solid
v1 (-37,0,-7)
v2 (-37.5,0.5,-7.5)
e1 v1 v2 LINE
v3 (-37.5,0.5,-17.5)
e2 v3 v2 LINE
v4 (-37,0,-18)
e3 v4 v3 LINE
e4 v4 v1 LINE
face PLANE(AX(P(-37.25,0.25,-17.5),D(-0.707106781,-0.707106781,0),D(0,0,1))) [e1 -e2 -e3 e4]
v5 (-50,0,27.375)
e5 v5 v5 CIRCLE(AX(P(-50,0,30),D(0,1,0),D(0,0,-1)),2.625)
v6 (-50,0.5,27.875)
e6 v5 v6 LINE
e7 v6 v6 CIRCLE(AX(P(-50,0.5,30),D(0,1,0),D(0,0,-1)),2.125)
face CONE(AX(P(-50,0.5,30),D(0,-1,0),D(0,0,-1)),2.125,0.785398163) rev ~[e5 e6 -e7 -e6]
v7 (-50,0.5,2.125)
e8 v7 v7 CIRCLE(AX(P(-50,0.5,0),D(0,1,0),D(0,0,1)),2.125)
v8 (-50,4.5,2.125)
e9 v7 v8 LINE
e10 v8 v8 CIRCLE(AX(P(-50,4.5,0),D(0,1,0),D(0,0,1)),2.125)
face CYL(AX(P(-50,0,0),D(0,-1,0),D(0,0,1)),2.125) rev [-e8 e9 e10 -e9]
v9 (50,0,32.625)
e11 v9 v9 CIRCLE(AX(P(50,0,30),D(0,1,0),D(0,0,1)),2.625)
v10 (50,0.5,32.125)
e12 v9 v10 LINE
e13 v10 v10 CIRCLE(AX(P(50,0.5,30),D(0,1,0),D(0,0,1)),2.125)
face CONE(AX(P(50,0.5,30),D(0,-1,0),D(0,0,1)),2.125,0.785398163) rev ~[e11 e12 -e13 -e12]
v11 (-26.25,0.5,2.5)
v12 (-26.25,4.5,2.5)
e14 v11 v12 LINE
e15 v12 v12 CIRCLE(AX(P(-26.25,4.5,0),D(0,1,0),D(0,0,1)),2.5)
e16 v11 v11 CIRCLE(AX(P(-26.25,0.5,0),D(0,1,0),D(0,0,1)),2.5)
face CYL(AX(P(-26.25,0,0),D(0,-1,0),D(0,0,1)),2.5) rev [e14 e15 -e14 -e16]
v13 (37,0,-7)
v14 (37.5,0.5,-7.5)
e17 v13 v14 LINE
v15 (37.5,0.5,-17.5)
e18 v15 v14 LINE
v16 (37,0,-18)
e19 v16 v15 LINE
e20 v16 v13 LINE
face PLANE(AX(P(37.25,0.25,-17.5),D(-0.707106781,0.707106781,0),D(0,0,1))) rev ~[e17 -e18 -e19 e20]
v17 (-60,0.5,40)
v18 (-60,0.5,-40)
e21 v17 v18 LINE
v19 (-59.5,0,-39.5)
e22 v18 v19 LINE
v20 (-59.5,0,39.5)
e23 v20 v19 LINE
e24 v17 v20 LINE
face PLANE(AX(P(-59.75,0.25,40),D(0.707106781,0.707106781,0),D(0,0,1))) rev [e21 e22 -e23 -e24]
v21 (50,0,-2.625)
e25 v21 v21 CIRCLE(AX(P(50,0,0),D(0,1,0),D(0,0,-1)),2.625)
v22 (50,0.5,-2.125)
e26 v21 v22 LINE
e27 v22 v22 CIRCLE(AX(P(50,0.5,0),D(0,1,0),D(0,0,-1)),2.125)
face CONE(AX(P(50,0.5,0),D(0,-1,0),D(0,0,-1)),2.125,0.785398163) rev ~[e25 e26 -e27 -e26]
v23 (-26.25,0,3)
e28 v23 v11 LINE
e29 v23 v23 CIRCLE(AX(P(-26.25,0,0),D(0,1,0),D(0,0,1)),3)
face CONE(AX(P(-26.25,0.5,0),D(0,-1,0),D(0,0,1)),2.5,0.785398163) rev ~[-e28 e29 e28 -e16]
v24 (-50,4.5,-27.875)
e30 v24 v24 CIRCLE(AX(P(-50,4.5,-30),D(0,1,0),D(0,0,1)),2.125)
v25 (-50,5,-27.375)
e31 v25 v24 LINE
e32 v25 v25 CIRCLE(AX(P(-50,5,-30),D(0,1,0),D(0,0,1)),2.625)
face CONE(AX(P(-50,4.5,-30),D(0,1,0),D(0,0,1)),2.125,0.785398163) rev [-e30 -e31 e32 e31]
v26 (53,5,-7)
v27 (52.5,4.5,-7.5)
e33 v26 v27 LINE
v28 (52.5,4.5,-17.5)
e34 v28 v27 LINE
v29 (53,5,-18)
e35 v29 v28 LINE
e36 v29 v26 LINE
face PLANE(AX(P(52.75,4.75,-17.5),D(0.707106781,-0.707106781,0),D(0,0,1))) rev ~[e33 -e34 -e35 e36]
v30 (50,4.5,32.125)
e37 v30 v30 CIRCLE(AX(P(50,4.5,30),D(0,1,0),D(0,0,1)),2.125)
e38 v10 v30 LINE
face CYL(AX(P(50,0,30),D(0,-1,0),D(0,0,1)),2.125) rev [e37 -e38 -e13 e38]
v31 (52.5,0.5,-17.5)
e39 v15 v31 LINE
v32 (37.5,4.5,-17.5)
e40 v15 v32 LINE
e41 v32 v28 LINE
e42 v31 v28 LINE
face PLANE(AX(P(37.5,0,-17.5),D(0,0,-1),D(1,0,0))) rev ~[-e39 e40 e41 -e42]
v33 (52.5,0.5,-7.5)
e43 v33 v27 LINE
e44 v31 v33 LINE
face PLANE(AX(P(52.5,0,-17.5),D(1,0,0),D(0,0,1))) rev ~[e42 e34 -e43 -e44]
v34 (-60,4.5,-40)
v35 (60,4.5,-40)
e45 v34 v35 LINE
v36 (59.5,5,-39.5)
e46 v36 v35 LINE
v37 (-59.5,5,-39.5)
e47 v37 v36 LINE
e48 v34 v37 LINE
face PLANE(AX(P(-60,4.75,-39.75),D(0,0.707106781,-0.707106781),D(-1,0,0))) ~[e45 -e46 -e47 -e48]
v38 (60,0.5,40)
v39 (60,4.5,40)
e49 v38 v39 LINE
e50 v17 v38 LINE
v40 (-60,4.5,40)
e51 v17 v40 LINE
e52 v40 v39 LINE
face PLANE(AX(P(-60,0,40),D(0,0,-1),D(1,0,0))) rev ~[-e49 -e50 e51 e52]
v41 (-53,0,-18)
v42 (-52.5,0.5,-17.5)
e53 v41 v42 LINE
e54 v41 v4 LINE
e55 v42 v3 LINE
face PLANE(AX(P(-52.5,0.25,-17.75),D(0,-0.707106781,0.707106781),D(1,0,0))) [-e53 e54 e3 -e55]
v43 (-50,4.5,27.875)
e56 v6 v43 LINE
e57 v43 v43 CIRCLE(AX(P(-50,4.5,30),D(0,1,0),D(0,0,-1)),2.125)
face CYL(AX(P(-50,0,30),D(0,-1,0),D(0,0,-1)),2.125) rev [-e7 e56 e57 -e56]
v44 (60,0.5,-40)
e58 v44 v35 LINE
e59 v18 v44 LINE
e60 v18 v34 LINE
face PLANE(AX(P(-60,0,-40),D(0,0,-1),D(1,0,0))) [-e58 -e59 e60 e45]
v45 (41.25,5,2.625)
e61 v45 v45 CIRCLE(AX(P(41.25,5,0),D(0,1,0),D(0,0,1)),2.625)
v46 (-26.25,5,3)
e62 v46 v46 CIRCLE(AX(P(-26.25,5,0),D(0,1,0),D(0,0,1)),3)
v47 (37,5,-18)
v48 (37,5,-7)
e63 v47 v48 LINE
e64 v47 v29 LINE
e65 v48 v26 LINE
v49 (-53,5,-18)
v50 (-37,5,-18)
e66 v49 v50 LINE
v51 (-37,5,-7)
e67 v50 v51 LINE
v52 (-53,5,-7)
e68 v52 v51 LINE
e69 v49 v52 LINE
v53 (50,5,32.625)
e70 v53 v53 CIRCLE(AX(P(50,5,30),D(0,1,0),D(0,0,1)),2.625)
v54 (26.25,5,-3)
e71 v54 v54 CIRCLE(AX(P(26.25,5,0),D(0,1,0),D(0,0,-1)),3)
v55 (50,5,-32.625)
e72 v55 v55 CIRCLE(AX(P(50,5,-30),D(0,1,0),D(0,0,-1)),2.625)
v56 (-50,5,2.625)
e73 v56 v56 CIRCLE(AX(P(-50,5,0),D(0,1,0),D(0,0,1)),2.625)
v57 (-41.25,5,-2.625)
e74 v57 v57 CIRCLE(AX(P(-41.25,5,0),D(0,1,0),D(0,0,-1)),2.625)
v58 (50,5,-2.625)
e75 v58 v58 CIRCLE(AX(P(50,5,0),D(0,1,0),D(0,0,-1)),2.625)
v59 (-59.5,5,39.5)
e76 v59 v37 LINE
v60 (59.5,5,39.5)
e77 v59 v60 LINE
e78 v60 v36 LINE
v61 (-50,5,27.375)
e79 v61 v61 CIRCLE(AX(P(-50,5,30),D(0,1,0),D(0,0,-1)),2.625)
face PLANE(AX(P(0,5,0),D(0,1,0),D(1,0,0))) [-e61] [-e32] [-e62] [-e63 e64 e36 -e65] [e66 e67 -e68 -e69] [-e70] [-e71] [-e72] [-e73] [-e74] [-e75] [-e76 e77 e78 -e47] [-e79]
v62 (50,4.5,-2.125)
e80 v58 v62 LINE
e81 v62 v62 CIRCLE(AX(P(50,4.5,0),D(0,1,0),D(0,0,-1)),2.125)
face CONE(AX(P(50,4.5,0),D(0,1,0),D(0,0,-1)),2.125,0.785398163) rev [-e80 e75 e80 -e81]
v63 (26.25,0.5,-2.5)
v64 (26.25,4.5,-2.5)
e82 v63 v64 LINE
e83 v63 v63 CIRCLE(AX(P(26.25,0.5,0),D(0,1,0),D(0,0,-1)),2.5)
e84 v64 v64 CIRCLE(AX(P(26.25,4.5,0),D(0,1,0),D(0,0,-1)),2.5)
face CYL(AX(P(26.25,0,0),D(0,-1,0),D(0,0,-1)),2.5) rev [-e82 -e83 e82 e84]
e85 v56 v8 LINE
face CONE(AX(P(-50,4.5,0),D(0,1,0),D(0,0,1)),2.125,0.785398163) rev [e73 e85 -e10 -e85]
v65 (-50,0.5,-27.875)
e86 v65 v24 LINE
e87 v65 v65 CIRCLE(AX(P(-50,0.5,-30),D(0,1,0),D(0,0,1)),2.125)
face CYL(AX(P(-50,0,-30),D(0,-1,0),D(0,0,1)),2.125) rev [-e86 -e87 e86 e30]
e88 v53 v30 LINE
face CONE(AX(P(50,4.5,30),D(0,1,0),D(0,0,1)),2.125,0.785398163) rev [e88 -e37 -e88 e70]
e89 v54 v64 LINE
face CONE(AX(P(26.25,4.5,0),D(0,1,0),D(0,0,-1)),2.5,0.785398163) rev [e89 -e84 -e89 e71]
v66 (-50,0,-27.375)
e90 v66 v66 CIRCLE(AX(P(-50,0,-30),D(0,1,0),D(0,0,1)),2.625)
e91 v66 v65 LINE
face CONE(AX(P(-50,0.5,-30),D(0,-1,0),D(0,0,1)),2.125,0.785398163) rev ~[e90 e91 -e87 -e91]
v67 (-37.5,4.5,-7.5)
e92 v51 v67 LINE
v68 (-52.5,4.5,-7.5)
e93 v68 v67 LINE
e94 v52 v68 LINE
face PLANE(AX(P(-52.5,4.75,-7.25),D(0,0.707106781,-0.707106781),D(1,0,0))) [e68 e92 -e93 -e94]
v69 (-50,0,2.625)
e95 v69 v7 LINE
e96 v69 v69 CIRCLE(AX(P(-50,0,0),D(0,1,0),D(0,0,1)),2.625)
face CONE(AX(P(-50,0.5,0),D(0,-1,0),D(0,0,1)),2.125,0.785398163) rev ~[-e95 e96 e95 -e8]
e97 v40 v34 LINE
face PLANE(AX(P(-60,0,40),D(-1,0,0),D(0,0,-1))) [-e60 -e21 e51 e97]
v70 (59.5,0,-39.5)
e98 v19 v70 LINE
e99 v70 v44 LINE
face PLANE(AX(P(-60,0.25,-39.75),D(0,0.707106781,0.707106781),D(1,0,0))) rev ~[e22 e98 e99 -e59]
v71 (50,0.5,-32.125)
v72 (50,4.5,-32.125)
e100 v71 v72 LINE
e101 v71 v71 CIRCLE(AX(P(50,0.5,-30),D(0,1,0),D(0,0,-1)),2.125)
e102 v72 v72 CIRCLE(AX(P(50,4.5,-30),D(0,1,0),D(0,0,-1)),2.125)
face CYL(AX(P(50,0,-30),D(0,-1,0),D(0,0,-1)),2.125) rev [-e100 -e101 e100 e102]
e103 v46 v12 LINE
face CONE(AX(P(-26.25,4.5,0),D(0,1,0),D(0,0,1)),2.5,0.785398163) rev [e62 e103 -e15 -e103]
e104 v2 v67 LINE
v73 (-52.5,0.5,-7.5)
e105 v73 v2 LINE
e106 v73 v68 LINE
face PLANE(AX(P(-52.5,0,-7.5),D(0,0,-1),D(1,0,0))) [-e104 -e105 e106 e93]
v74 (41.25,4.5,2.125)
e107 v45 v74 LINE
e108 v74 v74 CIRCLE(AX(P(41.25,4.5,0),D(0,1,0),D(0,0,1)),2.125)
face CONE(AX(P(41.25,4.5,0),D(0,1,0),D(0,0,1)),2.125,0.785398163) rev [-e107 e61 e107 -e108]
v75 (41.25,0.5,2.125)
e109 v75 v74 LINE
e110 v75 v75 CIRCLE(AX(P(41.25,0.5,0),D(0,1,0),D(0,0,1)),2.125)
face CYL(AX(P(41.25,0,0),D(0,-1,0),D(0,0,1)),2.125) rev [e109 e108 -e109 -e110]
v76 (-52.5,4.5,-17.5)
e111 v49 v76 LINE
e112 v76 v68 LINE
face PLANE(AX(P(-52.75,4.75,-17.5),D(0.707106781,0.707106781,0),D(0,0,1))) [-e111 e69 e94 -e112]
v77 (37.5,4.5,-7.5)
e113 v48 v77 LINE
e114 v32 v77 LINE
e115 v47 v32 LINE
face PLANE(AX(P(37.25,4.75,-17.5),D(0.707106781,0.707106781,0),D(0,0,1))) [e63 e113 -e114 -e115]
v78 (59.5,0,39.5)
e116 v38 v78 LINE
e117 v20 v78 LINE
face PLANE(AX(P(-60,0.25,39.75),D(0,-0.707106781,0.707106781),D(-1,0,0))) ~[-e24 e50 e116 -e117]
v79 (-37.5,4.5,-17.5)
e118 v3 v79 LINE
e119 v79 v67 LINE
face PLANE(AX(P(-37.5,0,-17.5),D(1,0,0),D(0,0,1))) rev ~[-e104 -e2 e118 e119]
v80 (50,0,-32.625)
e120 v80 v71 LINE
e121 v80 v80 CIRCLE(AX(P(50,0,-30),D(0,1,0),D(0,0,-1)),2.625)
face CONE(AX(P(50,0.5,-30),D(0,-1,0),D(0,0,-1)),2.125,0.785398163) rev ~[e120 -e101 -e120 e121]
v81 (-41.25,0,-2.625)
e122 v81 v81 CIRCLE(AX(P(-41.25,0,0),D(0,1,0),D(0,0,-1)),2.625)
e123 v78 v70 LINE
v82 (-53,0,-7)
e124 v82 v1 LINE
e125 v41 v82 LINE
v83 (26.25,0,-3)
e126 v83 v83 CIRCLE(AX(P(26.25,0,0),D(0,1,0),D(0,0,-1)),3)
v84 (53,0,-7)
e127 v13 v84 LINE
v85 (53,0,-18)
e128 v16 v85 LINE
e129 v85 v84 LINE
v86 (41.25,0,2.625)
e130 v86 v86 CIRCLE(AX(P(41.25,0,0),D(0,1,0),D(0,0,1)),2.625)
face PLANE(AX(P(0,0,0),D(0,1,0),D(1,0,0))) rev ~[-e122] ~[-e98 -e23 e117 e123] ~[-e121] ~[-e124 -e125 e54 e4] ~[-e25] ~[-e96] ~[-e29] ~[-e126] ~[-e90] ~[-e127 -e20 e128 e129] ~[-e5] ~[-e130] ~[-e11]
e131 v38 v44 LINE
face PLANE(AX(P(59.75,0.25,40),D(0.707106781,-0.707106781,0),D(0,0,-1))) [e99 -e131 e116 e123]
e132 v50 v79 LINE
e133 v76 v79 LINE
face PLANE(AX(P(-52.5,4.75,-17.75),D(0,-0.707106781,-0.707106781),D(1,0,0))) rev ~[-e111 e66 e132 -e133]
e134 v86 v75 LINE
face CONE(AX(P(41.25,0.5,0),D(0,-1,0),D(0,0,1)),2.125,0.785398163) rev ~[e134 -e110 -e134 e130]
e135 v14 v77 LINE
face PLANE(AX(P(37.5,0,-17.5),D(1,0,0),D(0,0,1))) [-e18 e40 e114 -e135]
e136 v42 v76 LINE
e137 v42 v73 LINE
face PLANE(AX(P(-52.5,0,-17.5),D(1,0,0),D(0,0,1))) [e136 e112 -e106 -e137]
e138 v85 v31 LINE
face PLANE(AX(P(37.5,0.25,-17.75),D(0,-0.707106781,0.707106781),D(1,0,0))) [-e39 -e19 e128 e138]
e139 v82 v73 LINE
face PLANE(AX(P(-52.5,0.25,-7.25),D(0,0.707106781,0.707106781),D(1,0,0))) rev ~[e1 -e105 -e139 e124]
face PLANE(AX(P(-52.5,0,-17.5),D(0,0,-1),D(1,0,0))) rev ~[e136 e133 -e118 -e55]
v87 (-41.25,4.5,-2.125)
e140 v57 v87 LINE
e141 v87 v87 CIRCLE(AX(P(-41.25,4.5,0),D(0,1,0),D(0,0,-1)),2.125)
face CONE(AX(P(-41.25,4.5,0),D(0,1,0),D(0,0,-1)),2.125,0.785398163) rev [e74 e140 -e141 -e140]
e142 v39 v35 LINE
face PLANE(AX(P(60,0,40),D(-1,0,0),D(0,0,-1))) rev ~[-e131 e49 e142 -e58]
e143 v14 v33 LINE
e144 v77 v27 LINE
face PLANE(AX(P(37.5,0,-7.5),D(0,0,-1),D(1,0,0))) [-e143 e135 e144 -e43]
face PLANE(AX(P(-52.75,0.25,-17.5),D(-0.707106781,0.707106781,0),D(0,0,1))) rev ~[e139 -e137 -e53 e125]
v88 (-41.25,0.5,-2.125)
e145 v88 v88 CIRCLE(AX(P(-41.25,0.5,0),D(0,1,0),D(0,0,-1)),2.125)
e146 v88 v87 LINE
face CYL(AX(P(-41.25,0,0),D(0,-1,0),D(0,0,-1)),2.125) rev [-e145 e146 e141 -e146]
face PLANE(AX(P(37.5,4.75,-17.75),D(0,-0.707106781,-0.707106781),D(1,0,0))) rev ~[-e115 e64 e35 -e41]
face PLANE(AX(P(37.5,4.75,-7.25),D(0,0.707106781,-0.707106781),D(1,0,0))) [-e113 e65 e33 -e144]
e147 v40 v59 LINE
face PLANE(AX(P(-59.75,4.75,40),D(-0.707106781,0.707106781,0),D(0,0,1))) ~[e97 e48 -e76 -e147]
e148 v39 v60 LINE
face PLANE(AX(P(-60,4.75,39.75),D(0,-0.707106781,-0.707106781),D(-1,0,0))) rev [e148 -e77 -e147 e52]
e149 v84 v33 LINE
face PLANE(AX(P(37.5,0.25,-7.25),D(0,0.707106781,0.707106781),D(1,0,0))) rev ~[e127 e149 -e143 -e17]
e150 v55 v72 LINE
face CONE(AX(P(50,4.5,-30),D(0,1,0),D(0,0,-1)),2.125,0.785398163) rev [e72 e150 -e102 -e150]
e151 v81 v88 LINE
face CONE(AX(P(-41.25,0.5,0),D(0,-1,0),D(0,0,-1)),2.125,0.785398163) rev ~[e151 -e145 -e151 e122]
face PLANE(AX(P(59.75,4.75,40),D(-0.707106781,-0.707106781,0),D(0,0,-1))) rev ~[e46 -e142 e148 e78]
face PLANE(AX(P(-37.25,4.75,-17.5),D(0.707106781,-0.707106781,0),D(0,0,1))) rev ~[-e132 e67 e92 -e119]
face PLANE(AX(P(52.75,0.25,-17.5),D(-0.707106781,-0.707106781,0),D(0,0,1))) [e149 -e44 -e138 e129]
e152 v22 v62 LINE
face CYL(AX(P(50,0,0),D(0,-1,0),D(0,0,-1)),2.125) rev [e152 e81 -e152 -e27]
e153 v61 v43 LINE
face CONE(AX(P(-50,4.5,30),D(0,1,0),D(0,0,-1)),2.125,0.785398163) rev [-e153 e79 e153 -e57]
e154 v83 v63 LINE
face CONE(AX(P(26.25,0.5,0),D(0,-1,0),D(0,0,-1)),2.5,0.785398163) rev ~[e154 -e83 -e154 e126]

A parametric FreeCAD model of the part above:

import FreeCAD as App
import Part
import Sketcher

V = App.Vector
Q = App.Units.Quantity


def edges_at(feature, points):
    """Names of the edges that pass closest to the given points."""
    edges = feature.Shape.Edges
    near = lambda p: min(range(len(edges)), key=lambda i: edges[i].distToShape(Part.Vertex(*p))[0])
    return sorted({f"Edge{near(p) + 1}" for p in points})


def add_polygon(sketch, points):
    """Adds a closed chain of lines whose ends are joined by coincident constraints."""
    first, n = sketch.GeometryCount, len(points)
    for a, b in zip(points, points[1:] + points[:1]):
        sketch.addGeometry(Part.LineSegment(App.Vector(*a, 0), App.Vector(*b, 0)), False)
    for i in range(n):
        sketch.addConstraint(Sketcher.Constraint("Coincident", first + i, 2, first + (i + 1) % n, 1))

doc = App.newDocument("Part")
body = doc.addObject("PartDesign::Body", "Body")

# Sketch on XZ plane
sketch1 = doc.addObject("Sketcher::SketchObject", "Sketch")
body.addObject(sketch1)
sketch1.AttachmentSupport = (doc.XZ_Plane, [""])
sketch1.MapMode = "FlatFace"
add_polygon(sketch1, [(-60, -40), (-60, 40), (60, 40), (60, -40)])  # lines 0-3
sketch1.addGeometry(Part.Circle(V(-50, 30, 0), V(0, 0, 1), 2.1), False)  # 4
sketch1.addGeometry(Part.Circle(V(50, 30, 0), V(0, 0, 1), 2.1), False)  # 5
sketch1.addGeometry(Part.Circle(V(-50, 0, 0), V(0, 0, 1), 2.1), False)  # 6
sketch1.addGeometry(Part.Circle(V(-41.2, 0, 0), V(0, 0, 1), 2.1), False)  # 7
sketch1.addGeometry(Part.Circle(V(-26.2, 0, 0), V(0, 0, 1), 2.5), False)  # 8
sketch1.addGeometry(Part.Circle(V(-50, -30, 0), V(0, 0, 1), 2.1), False)  # 9
sketch1.addGeometry(Part.Circle(V(26.2, 0, 0), V(0, 0, 1), 2.5), False)  # 10
sketch1.addGeometry(Part.Circle(V(41.2, 0, 0), V(0, 0, 1), 2.1), False)  # 11
sketch1.addGeometry(Part.Circle(V(50, 0, 0), V(0, 0, 1), 2.1), False)  # 12
sketch1.addGeometry(Part.Circle(V(50, -30, 0), V(0, 0, 1), 2.1), False)  # 13
sketch1.addConstraint([
    Sketcher.Constraint("Vertical", 0),
    Sketcher.Constraint("Horizontal", 1),
    Sketcher.Constraint("Vertical", 2),
    Sketcher.Constraint("Horizontal", 3),
    Sketcher.Constraint("Equal", 4, 5),
    Sketcher.Constraint("Equal", 5, 6),
    Sketcher.Constraint("Equal", 6, 7),
    Sketcher.Constraint("Equal", 7, 9),
    Sketcher.Constraint("Equal", 8, 10),
    Sketcher.Constraint("Equal", 9, 11),
    Sketcher.Constraint("Equal", 11, 12),
    Sketcher.Constraint("Equal", 12, 13),
    Sketcher.Constraint("Symmetric", 5, 3, 9, 3, -1, 1),
    Sketcher.Constraint("Symmetric", 8, 3, 10, 3, -1, 1),
    Sketcher.Constraint("Symmetric", 7, 3, 11, 3, -1, 1),
    Sketcher.Constraint("Symmetric", 6, 3, 12, 3, -1, 1),
    Sketcher.Constraint("Symmetric", 4, 3, 13, 3, -1, 1),
    Sketcher.Constraint("Symmetric", 0, 2, 2, 2, -1, 1),
    Sketcher.Constraint("Symmetric", 4, 3, 5, 3, -2),
    Sketcher.Constraint("PointOnObject", 6, 3, -1),
    Sketcher.Constraint("PointOnObject", 7, 3, -1),
    Sketcher.Constraint("PointOnObject", 8, 3, -1),
    Sketcher.Constraint("Vertical", 4, 3, 6, 3),
    Sketcher.Constraint("Diameter", 8, Q("5 mm")),
    Sketcher.Constraint("Diameter", 4, Q("4.25 mm")),
    Sketcher.Constraint("DistanceX", 1, 1, 1, 2, Q("120 mm")),
    Sketcher.Constraint("DistanceY", 0, 1, 0, 2, Q("80 mm")),
    Sketcher.Constraint("DistanceX", 4, 3, -1, 1, Q("50 mm")),
    Sketcher.Constraint("DistanceY", -1, 1, 4, 3, Q("30 mm")),
    Sketcher.Constraint("DistanceX", 7, 3, 8, 3, Q("15 mm")),
    Sketcher.Constraint("DistanceX", 8, 3, 10, 3, Q("52.5 mm")),
])
pad1 = doc.addObject("PartDesign::Pad", "Pad")
body.addObject(pad1)
pad1.Profile = sketch1
pad1.Length = 5
pad1.Reversed = True

# Sketch on XZ plane
sketch2 = doc.addObject("Sketcher::SketchObject", "Sketch001")
body.addObject(sketch2)
sketch2.AttachmentSupport = (doc.XZ_Plane, [""])
sketch2.MapMode = "FlatFace"
add_polygon(sketch2, [(38, -8), (38, -18), (52, -18), (52, -8)])  # lines 0-3
add_polygon(sketch2, [(-52, -8), (-52, -18), (-38, -18), (-38, -8)])  # lines 4-7
sketch2.addConstraint([
    Sketcher.Constraint("Vertical", 0),
    Sketcher.Constraint("Horizontal", 1),
    Sketcher.Constraint("Vertical", 2),
    Sketcher.Constraint("Horizontal", 3),
    Sketcher.Constraint("Vertical", 4),
    Sketcher.Constraint("Horizontal", 5),
    Sketcher.Constraint("Vertical", 6),
    Sketcher.Constraint("Horizontal", 7),
    Sketcher.Constraint("Symmetric", 1, 2, 4, 2, -2),
    Sketcher.Constraint("Symmetric", 3, 2, 6, 2, -2),
    Sketcher.Constraint("DistanceX", 1, 1, 1, 2, Q("15 mm")),
    Sketcher.Constraint("DistanceY", 0, 2, 0, 1, Q("10 mm")),
    Sketcher.Constraint("DistanceX", 4, 2, 0, 2, Q("90 mm")),
    Sketcher.Constraint("DistanceY", 0, 2, -1, 1, Q("17.5 mm")),
])
pocket1 = doc.addObject("PartDesign::Pocket", "Pocket")
body.addObject(pocket1)
pocket1.Profile = sketch2
pocket1.Length = 5
doc.recompute()

chamfer = doc.addObject("PartDesign::Chamfer", "Chamfer")
body.addObject(chamfer)
chamfer.Base = (pocket1, edges_at(pocket1, [
    (-50, 5, -32.125),
    (-60, 5, 0),
    (50, 5, 27.875),
    (0, 5, 40),
    (-50, 5, 32.125),
    (50, 5, -27.875),
    (-26.25, 5, -2.5),
    (26.25, 5, 2.5),
    (-50, 5, -2.125),
    (50, 5, 2.125),
    (41.25, 5, -2.125),
    (-41.25, 5, 2.125),
    (60, 5, 0),
    (52.5, 5, -12.5),
    (45, 5, -17.5),
    (37.5, 5, -12.5),
    (45, 5, -7.5),
    (-37.5, 5, -12.5),
    (-45, 5, -17.5),
    (-52.5, 5, -12.5),
    (-45, 5, -7.5),
    (0, 5, -40),
]))
chamfer.Size = 0.5
doc.recompute()

chamfer2 = doc.addObject("PartDesign::Chamfer", "Chamfer001")
body.addObject(chamfer2)
chamfer2.Base = (chamfer, edges_at(chamfer, [
    (-50, 0, -32.125),
    (50, 0, 27.875),
    (-50, 0, 32.125),
    (50, 0, -27.875),
    (-26.25, 0, -2.5),
    (26.25, 0, 2.5),
    (-50, 0, -2.125),
    (50, 0, 2.125),
    (41.25, 0, -2.125),
    (-41.25, 0, 2.125),
    (0, 0, 40),
    (-60, 0, 0),
    (0, 0, -40),
    (60, 0, 0),
    (52.5, 0, -12.5),
    (45, 0, -7.5),
    (37.5, 0, -12.5),
    (45, 0, -17.5),
    (-37.5, 0, -12.5),
    (-45, 0, -7.5),
    (-52.5, 0, -12.5),
    (-45, 0, -17.5),
]))
chamfer2.Size = 0.5

doc.recompute()
